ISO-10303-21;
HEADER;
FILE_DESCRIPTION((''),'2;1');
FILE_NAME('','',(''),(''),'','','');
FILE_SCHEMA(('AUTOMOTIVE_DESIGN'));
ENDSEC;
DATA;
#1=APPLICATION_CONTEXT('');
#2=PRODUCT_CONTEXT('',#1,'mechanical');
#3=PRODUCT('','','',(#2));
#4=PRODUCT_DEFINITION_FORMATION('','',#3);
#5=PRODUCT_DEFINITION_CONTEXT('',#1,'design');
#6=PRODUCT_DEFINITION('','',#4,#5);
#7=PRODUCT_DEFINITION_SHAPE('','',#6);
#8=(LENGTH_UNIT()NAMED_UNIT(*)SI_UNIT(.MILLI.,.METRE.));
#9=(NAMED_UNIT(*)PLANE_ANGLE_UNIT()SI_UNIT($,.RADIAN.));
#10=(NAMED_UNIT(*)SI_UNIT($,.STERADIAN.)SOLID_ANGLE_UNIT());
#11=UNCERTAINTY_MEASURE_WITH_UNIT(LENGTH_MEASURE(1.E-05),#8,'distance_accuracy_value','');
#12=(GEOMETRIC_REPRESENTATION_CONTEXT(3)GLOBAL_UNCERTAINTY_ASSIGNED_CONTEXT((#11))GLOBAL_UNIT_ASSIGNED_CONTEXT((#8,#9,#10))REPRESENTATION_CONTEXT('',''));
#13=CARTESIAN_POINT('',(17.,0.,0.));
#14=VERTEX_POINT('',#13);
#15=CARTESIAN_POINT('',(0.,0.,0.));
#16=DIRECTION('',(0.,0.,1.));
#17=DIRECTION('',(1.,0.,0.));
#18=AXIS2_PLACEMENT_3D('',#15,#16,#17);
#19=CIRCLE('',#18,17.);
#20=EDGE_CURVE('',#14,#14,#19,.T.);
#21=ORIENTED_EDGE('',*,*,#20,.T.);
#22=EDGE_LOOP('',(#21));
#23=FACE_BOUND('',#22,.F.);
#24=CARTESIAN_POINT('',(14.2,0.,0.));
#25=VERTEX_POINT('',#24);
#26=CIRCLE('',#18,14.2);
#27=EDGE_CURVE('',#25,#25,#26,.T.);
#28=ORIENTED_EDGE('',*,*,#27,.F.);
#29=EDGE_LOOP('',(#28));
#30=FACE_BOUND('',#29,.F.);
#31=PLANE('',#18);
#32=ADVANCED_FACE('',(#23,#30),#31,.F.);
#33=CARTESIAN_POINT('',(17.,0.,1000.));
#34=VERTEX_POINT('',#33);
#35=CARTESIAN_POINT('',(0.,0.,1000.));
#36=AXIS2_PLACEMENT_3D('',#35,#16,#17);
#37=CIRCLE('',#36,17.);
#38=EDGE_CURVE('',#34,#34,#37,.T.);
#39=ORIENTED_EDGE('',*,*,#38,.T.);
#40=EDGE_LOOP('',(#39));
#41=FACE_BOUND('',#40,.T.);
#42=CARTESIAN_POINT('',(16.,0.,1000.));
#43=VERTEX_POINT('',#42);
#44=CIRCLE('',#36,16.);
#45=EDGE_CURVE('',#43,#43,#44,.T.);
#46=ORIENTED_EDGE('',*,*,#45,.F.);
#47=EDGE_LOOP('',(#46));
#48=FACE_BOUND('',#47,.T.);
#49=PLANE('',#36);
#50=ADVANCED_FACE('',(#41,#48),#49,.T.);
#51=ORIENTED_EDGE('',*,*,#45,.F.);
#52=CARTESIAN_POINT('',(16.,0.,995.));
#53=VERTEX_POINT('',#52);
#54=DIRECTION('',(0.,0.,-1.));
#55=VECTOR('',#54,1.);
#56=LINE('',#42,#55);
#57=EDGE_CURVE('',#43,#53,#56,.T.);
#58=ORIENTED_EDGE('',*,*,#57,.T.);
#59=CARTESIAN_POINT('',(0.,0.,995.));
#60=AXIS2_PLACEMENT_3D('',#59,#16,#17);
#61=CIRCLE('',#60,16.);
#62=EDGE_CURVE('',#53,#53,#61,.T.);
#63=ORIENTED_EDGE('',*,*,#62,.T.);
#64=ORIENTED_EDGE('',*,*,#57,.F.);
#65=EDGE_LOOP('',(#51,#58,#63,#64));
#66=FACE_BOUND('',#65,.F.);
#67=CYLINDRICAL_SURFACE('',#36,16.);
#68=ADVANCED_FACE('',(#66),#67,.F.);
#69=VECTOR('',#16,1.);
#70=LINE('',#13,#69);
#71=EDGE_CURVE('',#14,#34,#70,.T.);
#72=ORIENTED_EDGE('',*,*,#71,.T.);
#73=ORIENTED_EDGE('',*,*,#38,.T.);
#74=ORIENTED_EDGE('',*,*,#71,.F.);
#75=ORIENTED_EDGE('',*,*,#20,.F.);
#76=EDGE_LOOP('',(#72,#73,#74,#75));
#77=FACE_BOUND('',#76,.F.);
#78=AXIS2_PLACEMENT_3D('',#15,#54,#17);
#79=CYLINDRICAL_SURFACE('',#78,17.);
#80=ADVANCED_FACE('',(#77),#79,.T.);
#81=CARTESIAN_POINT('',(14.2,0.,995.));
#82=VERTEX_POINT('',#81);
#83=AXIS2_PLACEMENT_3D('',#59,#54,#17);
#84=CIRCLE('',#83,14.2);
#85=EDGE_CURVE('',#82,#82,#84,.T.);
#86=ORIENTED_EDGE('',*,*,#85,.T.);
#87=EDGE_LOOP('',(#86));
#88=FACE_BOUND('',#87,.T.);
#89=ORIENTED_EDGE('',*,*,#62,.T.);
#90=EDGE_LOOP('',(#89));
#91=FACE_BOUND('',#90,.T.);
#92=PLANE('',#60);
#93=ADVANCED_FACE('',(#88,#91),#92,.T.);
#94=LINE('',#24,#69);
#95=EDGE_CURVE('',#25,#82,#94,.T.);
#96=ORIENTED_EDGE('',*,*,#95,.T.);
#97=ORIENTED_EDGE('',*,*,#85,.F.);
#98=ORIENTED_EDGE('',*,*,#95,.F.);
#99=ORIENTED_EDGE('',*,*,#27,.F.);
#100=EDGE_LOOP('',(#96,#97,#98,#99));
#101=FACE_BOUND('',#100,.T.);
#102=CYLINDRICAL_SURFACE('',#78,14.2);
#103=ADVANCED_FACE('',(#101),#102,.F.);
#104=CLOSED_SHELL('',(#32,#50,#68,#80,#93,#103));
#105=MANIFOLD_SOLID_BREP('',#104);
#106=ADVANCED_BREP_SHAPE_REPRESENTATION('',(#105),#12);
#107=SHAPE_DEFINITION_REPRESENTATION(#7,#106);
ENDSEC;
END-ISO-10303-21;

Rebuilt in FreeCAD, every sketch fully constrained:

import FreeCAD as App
import Part
import Sketcher
from FreeCAD import Vector

doc = App.newDocument("Part")
body = doc.addObject("PartDesign::Body", "Body")

sketch1 = doc.addObject("Sketcher::SketchObject", "Sketch")
body.addObject(sketch1)
sketch1.AttachmentSupport = (doc.XY_Plane, [""])
sketch1.MapMode = "FlatFace"
sketch1.addGeometry([
    Part.Circle(Vector(0, 0, 0), Vector(0, 0, 1), 17),
    Part.Circle(Vector(0, 0, 0), Vector(0, 0, 1), 14.2),
], False)
sketch1.addConstraint([
    Sketcher.Constraint("Coincident", 0, 3, -1, 1),
    Sketcher.Constraint("Coincident", 1, 3, -1, 1),
    Sketcher.Constraint("Diameter", 0, 34.0),
    Sketcher.Constraint("Diameter", 1, 28.4),
])
pad1 = doc.addObject("PartDesign::Pad", "Pad")
body.addObject(pad1)
pad1.Profile = sketch1
pad1.Length = 1000

sketch2 = doc.addObject("Sketcher::SketchObject", "Sketch001")
body.addObject(sketch2)
sketch2.AttachmentSupport = (doc.XY_Plane, [""])
sketch2.MapMode = "FlatFace"
sketch2.AttachmentOffset = App.Placement(Vector(0, 0, 1000), App.Rotation())
sketch2.addGeometry(Part.Circle(Vector(0, 0, 0), Vector(0, 0, 1), 16), False)
sketch2.addConstraint([
    Sketcher.Constraint("Coincident", 0, 3, -1, 1),
    Sketcher.Constraint("Diameter", 0, 32.0),
])
pocket1 = doc.addObject("PartDesign::Pocket", "Pocket")
body.addObject(pocket1)
pocket1.Profile = sketch2
pocket1.Length = 5

doc.recompute()
